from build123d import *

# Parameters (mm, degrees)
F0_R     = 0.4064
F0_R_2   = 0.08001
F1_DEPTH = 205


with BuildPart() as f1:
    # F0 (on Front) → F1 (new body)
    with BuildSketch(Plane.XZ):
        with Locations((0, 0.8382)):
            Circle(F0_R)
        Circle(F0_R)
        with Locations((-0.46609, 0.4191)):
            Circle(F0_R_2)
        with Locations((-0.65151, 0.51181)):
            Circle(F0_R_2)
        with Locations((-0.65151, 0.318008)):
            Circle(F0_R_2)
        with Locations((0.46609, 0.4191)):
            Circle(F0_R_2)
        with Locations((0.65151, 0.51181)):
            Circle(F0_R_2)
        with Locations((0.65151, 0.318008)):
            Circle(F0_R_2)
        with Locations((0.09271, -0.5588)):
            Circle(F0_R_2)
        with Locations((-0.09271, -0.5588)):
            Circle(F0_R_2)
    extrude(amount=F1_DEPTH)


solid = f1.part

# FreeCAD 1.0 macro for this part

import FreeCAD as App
import Part
import Sketcher
from FreeCAD import Vector
Q = App.Units.Quantity

doc = App.newDocument("Part")
body = doc.addObject("PartDesign::Body", "Body")
body.AllowCompound = True

# Sketch on XZ plane
sketch1 = doc.addObject("Sketcher::SketchObject", "Sketch")
body.addObject(sketch1)
sketch1.AttachmentSupport = (doc.XZ_Plane, [""])
sketch1.MapMode = "FlatFace"
sketch1.addGeometry([
    Part.Circle(Vector(0, 0.84, 0), Vector(0, 0, 1), 0.41),  # 0
    Part.Circle(Vector(0, 0, 0), Vector(0, 0, 1), 0.41),  # 1
    Part.Circle(Vector(-0.47, 0.42, 0), Vector(0, 0, 1), 0.08),  # 2
    Part.Circle(Vector(-0.65, 0.51, 0), Vector(0, 0, 1), 0.08),  # 3
    Part.Circle(Vector(-0.65, 0.32, 0), Vector(0, 0, 1), 0.08),  # 4
    Part.Circle(Vector(0.47, 0.42, 0), Vector(0, 0, 1), 0.08),  # 5
    Part.Circle(Vector(0.65, 0.51, 0), Vector(0, 0, 1), 0.08),  # 6
    Part.Circle(Vector(0.65, 0.32, 0), Vector(0, 0, 1), 0.08),  # 7
    Part.Circle(Vector(0.09, -0.56, 0), Vector(0, 0, 1), 0.08),  # 8
    Part.Circle(Vector(-0.09, -0.56, 0), Vector(0, 0, 1), 0.08),  # 9
], False)
sketch1.addConstraint([
    Sketcher.Constraint("Coincident", 1, 3, -1, 1),
    Sketcher.Constraint("Equal", 0, 1),
    Sketcher.Constraint("Equal", 2, 3),
    Sketcher.Constraint("Equal", 3, 4),
    Sketcher.Constraint("Equal", 4, 5),
    Sketcher.Constraint("Equal", 5, 6),
    Sketcher.Constraint("Equal", 6, 7),
    Sketcher.Constraint("Equal", 7, 8),
    Sketcher.Constraint("Equal", 8, 9),
    Sketcher.Constraint("Symmetric", 2, 3, 5, 3, -2),
    Sketcher.Constraint("Symmetric", 3, 3, 6, 3, -2),
    Sketcher.Constraint("Symmetric", 4, 3, 7, 3, -2),
    Sketcher.Constraint("Symmetric", 8, 3, 9, 3, -2),
    Sketcher.Constraint("PointOnObject", 0, 3, -2),
    Sketcher.Constraint("Vertical", 3, 3, 4, 3),
    Sketcher.Constraint("Diameter", 0, Q("0.8128 mm")),
    Sketcher.Constraint("Diameter", 2, Q("0.16002 mm")),
    Sketcher.Constraint("DistanceY", -1, 1, 0, 3, Q("0.8382 mm")),
    Sketcher.Constraint("DistanceY", -1, 1, 2, 3, Q("0.4191 mm")),
    Sketcher.Constraint("DistanceY", 8, 3, -1, 1, Q("0.5588 mm")),
    Sketcher.Constraint("DistanceY", 4, 3, 3, 3, Q("0.193802 mm")),
    Sketcher.Constraint("DistanceX", 3, 3, 5, 3, Q("1.1176 mm")),
    Sketcher.Constraint("DistanceX", 8, 3, 7, 3, Q("0.5588 mm")),
    Sketcher.Constraint("DistanceX", 2, 3, -1, 1, Q("0.46609 mm")),
    Sketcher.Constraint("DistanceY", -1, 1, 3, 3, Q("0.51181 mm")),
])
pad1 = doc.addObject("PartDesign::Pad", "Pad")
body.addObject(pad1)
pad1.Profile = sketch1
pad1.Length = 205

doc.recompute()
